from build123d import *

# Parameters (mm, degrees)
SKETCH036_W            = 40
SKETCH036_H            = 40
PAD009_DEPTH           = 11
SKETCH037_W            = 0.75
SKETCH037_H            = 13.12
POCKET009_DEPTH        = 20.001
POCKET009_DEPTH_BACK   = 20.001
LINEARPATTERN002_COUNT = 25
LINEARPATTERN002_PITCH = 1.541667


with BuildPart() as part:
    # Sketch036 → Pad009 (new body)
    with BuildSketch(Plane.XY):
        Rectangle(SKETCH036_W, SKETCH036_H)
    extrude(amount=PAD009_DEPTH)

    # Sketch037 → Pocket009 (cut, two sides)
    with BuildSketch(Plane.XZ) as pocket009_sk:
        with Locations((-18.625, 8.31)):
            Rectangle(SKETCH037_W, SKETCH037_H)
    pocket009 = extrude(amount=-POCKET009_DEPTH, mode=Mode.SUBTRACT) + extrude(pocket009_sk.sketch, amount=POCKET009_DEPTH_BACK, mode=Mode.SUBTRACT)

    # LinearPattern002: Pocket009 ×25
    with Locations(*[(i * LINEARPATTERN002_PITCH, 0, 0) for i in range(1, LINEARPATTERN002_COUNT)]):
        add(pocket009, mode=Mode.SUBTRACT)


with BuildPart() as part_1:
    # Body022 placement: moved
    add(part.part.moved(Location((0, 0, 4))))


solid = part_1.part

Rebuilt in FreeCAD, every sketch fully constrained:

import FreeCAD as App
import Part
import Sketcher

V = App.Vector
Q = App.Units.Quantity


def add_polygon(sketch, points):
    """Adds a closed chain of lines whose ends are joined by coincident constraints."""
    first, n = sketch.GeometryCount, len(points)
    for a, b in zip(points, points[1:] + points[:1]):
        sketch.addGeometry(Part.LineSegment(App.Vector(*a, 0), App.Vector(*b, 0)), False)
    for i in range(n):
        sketch.addConstraint(Sketcher.Constraint("Coincident", first + i, 2, first + (i + 1) % n, 1))

doc = App.newDocument("Part")
params = doc.addObject("Spreadsheet::Sheet", "Params")
for row, (alias, value) in enumerate([
    ("sketch1_width", "40 mm"),
    ("pad1_length", "11 mm"),
    ("sketch2_width", "0.75 mm"),
    ("sketch2_height", "13.12 mm"),
    ("linearpattern_pitch", "1.541667 mm"),
], start=1):
    params.set(f"A{row}", alias)
    params.set(f"B{row}", "=" + value)
    params.setAlias(f"B{row}", alias)

body = doc.addObject("PartDesign::Body", "Body")

sketch1 = body.newObject("Sketcher::SketchObject", "Sketch")
sketch1.AttachmentSupport = (doc.getObject("XY_Plane"), [""])
sketch1.MapMode = "FlatFace"
add_polygon(sketch1, [(-20, 20), (-20, -20), (20, -20), (20, 20)])
sketch1.addConstraint(Sketcher.Constraint("Vertical", 0))
sketch1.addConstraint(Sketcher.Constraint("Horizontal", 1))
sketch1.addConstraint(Sketcher.Constraint("Vertical", 2))
sketch1.addConstraint(Sketcher.Constraint("Horizontal", 3))
sketch1.addConstraint(Sketcher.Constraint("Symmetric", 0, 2, 2, 2, -1, 1))
sketch1.addConstraint(Sketcher.Constraint("Equal", 3, 0))
sketch1.addConstraint(Sketcher.Constraint("DistanceX", 1, 1, 1, 2, Q("40 mm")))
sketch1.setExpression("Constraints[10]", "Params.sketch1_width")
pad1 = body.newObject("PartDesign::Pad", "Pad")
pad1.Profile = sketch1
pad1.setExpression("Length", "Params.pad1_length")

sketch2 = body.newObject("Sketcher::SketchObject", "Sketch001")
sketch2.AttachmentSupport = (doc.getObject("XZ_Plane"), [""])
sketch2.MapMode = "FlatFace"
add_polygon(sketch2, [(-19, 14.87), (-19, 1.75), (-18.25, 1.75), (-18.25, 14.87)])
sketch2.addConstraint(Sketcher.Constraint("Vertical", 0))
sketch2.addConstraint(Sketcher.Constraint("Horizontal", 1))
sketch2.addConstraint(Sketcher.Constraint("Vertical", 2))
sketch2.addConstraint(Sketcher.Constraint("Horizontal", 3))
sketch2.addConstraint(Sketcher.Constraint("DistanceX", 0, 2, -1, 1, Q("19 mm")))
sketch2.addConstraint(Sketcher.Constraint("DistanceX", 1, 1, 1, 2, Q("0.75 mm")))
sketch2.addConstraint(Sketcher.Constraint("DistanceY", 0, 2, 0, 1, Q("13.12 mm")))
sketch2.addConstraint(Sketcher.Constraint("DistanceY", -1, 1, 0, 2, Q("1.75 mm")))
sketch2.setExpression("Constraints[9]", "Params.sketch2_width")
sketch2.setExpression("Constraints[10]", "Params.sketch2_height")
pocket1 = body.newObject("PartDesign::Pocket", "Pocket")
pocket1.Profile = sketch2
pocket1.Type = "ThroughAll"
pocket1.Midplane = True
doc.recompute()

linearpattern = body.newObject("PartDesign::LinearPattern", "LinearPattern")
linearpattern.Originals = [pocket1]
linearpattern.Direction = (doc.getObject("X_Axis"), [""])
linearpattern.Mode = "offset"
linearpattern.setExpression("Offset", "Params.linearpattern_pitch")
linearpattern.Occurrences = 25
body.Tip = linearpattern
body2 = doc.addObject("PartDesign::Body", "Body001")
doc.recompute()

body.Placement = App.Placement(V(0, 0, 4), App.Rotation(V(0, 0, 1), 0))
boolean = body2.newObject("PartDesign::Boolean", "Boolean")
boolean.Type = "Fuse"
boolean.addObjects([body])

doc.recompute()
